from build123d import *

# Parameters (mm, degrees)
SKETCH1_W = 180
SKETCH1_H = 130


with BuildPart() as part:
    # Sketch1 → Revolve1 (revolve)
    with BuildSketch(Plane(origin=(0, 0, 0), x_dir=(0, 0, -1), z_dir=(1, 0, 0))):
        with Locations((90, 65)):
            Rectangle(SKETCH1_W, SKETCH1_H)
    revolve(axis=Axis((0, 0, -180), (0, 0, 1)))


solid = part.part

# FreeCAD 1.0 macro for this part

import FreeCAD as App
import Part
import Sketcher
from FreeCAD import Vector
Q = App.Units.Quantity

doc = App.newDocument("Part")
params = doc.addObject("Spreadsheet::Sheet", "Params")
for row, (alias, value) in enumerate([
    ("sketch1_width", "130 mm"),
    ("sketch1_height", "180 mm"),
    ("revolution_angle", "360 deg"),
], start=1):
    params.set(f"A{row}", alias)
    params.set(f"B{row}", "=" + value)
    params.setAlias(f"B{row}", alias)

body = doc.addObject("PartDesign::Body", "Body")

sketch1 = body.newObject("Sketcher::SketchObject", "Sketch")
sketch1.AttachmentSupport = (doc.getObject("YZ_Plane"), [""])
sketch1.MapMode = "FlatFace"
sketch1.addGeometry([
    Part.LineSegment(Vector(130, 0, 0), Vector(0, 0, 0)),
    Part.LineSegment(Vector(0, 0, 0), Vector(0, -180, 0)),
    Part.LineSegment(Vector(0, -180, 0), Vector(130, -180, 0)),
    Part.LineSegment(Vector(130, -180, 0), Vector(130, 0, 0)),
], False)
sketch1.addConstraint([
    Sketcher.Constraint("Coincident", 0, 2, 1, 1),
    Sketcher.Constraint("Coincident", 1, 2, 2, 1),
    Sketcher.Constraint("Coincident", 2, 2, 3, 1),
    Sketcher.Constraint("Coincident", 3, 2, 0, 1),
    Sketcher.Constraint("Horizontal", 0),
    Sketcher.Constraint("Vertical", 1),
    Sketcher.Constraint("Horizontal", 2),
    Sketcher.Constraint("Vertical", 3),
    Sketcher.Constraint("Coincident", 0, 2, -1, 1),
    Sketcher.Constraint("DistanceX", 0, 2, 0, 1, Q("130 mm")),
    Sketcher.Constraint("DistanceY", 1, 2, 1, 1, Q("180 mm")),
])
sketch1.setExpression("Constraints[9]", "Params.sketch1_width")
sketch1.setExpression("Constraints[10]", "Params.sketch1_height")
revolution = body.newObject("PartDesign::Revolution", "Revolution")
revolution.Profile = sketch1
revolution.ReferenceAxis = (sketch1, ["V_Axis"])
revolution.setExpression("Angle", "Params.revolution_angle")

doc.recompute()
